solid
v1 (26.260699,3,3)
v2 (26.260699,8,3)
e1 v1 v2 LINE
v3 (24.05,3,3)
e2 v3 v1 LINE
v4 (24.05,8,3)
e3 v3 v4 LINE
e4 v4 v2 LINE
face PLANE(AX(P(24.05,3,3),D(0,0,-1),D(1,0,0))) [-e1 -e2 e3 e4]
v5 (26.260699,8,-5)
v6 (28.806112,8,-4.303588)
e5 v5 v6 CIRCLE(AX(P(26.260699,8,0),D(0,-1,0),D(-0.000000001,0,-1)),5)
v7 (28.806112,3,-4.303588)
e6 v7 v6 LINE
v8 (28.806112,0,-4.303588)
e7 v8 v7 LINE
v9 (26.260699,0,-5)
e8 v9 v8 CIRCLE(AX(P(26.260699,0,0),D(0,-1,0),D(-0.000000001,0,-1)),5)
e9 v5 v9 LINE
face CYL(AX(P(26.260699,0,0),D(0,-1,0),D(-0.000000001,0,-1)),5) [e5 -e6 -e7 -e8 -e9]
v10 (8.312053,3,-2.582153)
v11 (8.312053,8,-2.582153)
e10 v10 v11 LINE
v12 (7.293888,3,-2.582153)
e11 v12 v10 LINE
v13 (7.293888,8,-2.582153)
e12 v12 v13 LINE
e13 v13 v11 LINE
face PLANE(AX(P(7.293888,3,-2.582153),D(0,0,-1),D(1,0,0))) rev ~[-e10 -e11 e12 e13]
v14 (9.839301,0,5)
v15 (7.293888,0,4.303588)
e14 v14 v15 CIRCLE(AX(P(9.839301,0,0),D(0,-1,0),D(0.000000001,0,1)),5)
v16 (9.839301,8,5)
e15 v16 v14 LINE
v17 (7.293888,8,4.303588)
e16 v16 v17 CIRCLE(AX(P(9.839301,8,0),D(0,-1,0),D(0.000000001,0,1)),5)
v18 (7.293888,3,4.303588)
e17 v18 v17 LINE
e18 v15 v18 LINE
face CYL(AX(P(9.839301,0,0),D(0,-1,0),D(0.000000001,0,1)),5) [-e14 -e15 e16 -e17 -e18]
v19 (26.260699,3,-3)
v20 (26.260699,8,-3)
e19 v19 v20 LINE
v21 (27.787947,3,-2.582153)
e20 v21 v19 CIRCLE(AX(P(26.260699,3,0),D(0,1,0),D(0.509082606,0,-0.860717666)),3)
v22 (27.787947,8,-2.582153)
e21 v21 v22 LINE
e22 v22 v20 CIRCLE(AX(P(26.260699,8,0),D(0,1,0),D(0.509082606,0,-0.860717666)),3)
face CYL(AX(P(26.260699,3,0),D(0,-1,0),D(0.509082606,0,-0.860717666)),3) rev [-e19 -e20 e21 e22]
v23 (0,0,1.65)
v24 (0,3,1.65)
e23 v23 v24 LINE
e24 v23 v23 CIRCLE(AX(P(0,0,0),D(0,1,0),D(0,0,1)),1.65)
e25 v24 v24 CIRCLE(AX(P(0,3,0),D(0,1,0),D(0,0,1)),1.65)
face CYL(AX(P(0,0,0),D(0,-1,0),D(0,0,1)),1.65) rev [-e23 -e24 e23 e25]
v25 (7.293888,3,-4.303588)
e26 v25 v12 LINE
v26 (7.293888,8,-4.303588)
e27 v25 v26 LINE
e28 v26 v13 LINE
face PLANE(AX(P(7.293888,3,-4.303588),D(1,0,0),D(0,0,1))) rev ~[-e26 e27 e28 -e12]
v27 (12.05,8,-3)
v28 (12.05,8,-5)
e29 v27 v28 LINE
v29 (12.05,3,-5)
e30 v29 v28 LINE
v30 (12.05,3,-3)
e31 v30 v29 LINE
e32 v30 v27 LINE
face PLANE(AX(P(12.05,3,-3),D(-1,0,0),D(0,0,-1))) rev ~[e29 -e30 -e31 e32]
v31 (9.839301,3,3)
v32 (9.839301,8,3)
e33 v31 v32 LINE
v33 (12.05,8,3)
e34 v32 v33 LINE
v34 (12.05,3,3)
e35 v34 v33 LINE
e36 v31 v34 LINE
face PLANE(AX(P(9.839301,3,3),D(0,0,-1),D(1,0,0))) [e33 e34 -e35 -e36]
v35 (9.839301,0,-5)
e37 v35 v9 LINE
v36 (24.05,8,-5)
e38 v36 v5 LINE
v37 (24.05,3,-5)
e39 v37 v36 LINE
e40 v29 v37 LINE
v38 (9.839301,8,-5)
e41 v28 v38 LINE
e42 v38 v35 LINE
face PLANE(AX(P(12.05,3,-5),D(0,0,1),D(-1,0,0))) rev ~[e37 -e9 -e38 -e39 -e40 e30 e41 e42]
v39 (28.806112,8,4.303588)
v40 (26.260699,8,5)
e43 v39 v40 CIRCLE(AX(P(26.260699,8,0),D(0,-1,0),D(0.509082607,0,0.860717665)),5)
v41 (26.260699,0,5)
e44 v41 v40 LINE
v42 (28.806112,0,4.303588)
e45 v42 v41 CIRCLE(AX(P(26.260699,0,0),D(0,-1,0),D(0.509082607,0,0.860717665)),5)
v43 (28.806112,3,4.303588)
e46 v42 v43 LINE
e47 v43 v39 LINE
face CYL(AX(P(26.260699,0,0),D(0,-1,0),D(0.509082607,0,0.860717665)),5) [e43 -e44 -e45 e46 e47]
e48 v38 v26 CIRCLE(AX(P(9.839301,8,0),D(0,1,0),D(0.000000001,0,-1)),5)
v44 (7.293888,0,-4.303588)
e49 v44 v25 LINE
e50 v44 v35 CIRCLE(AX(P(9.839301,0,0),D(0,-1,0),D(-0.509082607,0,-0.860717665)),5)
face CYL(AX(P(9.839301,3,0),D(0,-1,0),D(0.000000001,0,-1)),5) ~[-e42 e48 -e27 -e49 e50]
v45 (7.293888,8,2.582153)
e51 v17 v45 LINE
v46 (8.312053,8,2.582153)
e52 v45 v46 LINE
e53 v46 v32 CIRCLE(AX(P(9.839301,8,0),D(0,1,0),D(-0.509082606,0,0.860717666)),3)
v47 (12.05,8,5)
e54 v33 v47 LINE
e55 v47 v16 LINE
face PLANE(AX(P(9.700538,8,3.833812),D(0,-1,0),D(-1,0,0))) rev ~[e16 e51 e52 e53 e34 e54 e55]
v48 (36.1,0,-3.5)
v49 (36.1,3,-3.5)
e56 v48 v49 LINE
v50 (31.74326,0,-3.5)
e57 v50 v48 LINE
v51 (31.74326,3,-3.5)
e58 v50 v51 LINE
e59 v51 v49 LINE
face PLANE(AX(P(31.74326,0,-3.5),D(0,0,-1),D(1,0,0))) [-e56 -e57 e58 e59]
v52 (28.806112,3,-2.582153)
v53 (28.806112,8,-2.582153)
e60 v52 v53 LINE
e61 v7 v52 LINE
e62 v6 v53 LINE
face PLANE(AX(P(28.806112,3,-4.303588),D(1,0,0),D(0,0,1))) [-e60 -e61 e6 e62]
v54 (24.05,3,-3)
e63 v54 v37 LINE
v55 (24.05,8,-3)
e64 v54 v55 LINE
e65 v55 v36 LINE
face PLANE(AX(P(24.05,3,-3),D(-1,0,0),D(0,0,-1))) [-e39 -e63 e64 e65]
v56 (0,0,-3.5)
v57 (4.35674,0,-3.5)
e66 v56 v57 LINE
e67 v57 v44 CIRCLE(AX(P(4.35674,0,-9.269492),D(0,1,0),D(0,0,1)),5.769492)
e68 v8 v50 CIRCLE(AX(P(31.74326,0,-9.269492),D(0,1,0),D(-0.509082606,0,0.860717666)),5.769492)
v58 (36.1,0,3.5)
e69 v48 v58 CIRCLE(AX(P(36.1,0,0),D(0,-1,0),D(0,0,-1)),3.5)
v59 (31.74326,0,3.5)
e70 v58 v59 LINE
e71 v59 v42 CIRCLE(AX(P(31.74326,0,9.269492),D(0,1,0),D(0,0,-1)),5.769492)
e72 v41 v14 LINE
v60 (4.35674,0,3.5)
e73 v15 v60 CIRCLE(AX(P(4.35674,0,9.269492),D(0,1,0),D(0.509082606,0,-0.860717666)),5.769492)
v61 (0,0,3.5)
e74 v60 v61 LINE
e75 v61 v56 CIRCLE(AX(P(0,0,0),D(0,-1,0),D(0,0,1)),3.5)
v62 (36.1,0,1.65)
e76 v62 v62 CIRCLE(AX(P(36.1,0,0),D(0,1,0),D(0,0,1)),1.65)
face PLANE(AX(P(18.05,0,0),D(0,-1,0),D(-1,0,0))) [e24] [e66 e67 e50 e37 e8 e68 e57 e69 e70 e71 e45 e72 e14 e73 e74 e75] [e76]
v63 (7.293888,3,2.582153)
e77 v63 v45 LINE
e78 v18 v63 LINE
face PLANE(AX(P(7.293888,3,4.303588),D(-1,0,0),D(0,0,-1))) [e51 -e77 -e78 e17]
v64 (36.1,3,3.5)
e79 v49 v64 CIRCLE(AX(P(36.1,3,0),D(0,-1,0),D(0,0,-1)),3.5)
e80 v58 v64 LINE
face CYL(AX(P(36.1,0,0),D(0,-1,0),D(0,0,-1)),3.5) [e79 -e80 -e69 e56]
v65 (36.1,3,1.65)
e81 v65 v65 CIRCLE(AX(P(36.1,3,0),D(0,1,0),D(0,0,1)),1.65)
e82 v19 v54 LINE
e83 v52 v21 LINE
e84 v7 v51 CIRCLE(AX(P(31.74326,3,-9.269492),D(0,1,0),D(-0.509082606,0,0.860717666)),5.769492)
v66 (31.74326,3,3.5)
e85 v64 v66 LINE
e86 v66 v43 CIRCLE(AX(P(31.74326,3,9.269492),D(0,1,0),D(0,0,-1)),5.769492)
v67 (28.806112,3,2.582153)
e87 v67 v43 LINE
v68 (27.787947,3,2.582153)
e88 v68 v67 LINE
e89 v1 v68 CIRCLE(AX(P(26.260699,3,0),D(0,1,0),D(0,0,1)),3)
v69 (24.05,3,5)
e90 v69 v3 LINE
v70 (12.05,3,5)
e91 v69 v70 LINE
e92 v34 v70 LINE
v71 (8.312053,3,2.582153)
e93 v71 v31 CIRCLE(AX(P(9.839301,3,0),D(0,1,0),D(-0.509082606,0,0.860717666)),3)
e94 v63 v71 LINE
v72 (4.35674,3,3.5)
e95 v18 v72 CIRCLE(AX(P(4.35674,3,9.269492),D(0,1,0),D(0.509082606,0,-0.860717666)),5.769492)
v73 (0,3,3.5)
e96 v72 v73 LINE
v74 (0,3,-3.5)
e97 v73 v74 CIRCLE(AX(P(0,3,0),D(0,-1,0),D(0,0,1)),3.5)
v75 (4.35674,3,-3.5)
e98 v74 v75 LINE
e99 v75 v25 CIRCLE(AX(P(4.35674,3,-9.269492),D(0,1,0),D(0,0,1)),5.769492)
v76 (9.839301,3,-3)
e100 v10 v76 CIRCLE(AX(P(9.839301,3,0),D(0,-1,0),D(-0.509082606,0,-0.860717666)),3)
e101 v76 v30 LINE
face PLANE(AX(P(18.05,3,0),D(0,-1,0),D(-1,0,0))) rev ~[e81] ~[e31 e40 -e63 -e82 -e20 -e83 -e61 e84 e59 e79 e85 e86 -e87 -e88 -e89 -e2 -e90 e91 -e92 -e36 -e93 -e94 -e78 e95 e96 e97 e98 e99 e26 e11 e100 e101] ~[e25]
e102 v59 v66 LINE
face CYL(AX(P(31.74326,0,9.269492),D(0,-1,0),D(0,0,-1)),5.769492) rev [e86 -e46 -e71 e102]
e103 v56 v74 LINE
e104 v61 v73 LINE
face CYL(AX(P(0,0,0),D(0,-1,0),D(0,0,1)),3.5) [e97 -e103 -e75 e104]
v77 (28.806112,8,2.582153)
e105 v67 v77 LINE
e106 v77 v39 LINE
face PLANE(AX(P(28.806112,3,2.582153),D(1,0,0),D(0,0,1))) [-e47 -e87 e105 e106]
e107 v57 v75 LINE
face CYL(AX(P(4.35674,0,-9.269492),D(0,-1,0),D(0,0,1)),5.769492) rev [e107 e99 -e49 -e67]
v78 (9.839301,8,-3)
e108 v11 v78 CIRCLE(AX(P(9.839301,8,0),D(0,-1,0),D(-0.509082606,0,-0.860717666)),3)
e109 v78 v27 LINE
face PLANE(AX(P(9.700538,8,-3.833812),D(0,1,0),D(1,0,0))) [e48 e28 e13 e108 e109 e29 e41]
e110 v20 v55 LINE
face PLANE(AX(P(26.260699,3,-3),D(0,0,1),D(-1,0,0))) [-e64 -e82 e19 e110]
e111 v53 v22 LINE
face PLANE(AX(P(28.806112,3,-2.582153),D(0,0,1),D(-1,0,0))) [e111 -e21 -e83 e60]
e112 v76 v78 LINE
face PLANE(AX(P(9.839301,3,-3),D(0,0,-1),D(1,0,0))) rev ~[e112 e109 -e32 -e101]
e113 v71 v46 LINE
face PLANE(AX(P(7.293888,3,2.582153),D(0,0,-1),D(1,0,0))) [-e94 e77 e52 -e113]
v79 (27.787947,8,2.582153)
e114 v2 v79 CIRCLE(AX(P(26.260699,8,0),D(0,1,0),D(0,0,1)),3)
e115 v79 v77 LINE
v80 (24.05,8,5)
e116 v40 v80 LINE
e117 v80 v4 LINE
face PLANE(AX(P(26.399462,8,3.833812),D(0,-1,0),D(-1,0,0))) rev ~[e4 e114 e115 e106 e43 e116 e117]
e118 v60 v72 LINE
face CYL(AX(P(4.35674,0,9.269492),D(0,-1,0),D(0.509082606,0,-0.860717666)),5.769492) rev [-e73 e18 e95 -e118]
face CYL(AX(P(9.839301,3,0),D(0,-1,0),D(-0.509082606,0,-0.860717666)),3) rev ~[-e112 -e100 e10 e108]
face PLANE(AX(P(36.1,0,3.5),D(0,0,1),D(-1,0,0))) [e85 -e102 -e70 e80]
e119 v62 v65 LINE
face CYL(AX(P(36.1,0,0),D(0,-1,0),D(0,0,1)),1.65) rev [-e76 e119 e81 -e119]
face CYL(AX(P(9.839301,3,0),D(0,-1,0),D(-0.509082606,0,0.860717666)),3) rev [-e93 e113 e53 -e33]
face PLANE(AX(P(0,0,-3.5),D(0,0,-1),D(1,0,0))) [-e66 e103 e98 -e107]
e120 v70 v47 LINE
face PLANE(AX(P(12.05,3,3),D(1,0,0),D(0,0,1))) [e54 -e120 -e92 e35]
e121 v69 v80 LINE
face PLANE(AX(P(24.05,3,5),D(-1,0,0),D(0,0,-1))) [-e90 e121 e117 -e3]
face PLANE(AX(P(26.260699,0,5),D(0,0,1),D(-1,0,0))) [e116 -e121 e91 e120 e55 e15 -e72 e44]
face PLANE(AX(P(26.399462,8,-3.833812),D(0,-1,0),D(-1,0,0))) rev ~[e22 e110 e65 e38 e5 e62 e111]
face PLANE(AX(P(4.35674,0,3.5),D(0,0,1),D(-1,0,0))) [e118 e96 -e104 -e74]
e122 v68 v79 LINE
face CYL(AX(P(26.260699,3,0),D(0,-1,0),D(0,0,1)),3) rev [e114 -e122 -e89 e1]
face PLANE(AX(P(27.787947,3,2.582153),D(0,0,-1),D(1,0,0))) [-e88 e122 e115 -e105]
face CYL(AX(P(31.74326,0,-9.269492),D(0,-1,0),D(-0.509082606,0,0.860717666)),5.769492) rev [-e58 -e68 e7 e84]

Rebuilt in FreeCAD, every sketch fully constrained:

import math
import FreeCAD as App
import Part
import Sketcher

V = App.Vector

doc = App.newDocument("Part")
body = doc.addObject("PartDesign::Body", "Body")

# Sketch on XZ plane
sketch1 = body.newObject("Sketcher::SketchObject", "Sketch")
sketch1.AttachmentSupport = (doc.getObject("XZ_Plane"), [""])
sketch1.MapMode = "FlatFace"
sketch1.addGeometry(Part.LineSegment(V(4.4, -3.5, 0), V(0, -3.5, 0)), False)
sketch1.addGeometry(Part.ArcOfCircle(Part.Circle(V(0, 0, 0), V(0, 0, 1), 3.5), math.radians(90), math.radians(270)), False)
sketch1.addGeometry(Part.LineSegment(V(0, 3.5, 0), V(4.4, 3.5, 0)), False)
sketch1.addGeometry(Part.ArcOfCircle(Part.Circle(V(4.4, 9.3, 0), V(0, 0, 1), 5.8), math.radians(-90), math.radians(-59)), False)
sketch1.addGeometry(Part.ArcOfCircle(Part.Circle(V(9.8, 0, 0), V(0, 0, 1), 5), math.radians(90), math.radians(121)), False)
sketch1.addGeometry(Part.LineSegment(V(9.8, 5, 0), V(26.3, 5, 0)), False)
sketch1.addGeometry(Part.ArcOfCircle(Part.Circle(V(26.3, 0, 0), V(0, 0, 1), 5), math.radians(59), math.radians(90)), False)
sketch1.addGeometry(Part.ArcOfCircle(Part.Circle(V(31.7, 9.3, 0), V(0, 0, 1), 5.8), math.radians(-121), math.radians(-90)), False)
sketch1.addGeometry(Part.LineSegment(V(31.7, 3.5, 0), V(36.1, 3.5, 0)), False)
sketch1.addGeometry(Part.ArcOfCircle(Part.Circle(V(36.1, 0, 0), V(0, 0, 1), 3.5), math.radians(-90), math.radians(90)), False)
sketch1.addGeometry(Part.LineSegment(V(36.1, -3.5, 0), V(31.7, -3.5, 0)), False)
sketch1.addGeometry(Part.ArcOfCircle(Part.Circle(V(31.7, -9.3, 0), V(0, 0, 1), 5.8), math.radians(90), math.radians(121)), False)
sketch1.addGeometry(Part.ArcOfCircle(Part.Circle(V(26.3, 0, 0), V(0, 0, 1), 5), math.radians(-90), math.radians(-59)), False)
sketch1.addGeometry(Part.LineSegment(V(26.3, -5, 0), V(9.8, -5, 0)), False)
sketch1.addGeometry(Part.ArcOfCircle(Part.Circle(V(9.8, 0, 0), V(0, 0, 1), 5), math.radians(-121), math.radians(-90)), False)
sketch1.addGeometry(Part.ArcOfCircle(Part.Circle(V(4.4, -9.3, 0), V(0, 0, 1), 5.8), math.radians(59), math.radians(90)), False)
sketch1.addGeometry(Part.Circle(V(36.1, 0, 0), V(0, 0, 1), 1.6), False)
sketch1.addGeometry(Part.Circle(V(0, 0, 0), V(0, 0, 1), 1.6), False)
sketch1.addConstraint(Sketcher.Constraint("Tangent", 0, 2, 1, 2))
sketch1.addConstraint(Sketcher.Constraint("Tangent", 1, 1, 2, 1))
sketch1.addConstraint(Sketcher.Constraint("Tangent", 2, 2, 3, 1))
sketch1.addConstraint(Sketcher.Constraint("Tangent", 3, 2, 4, 2))
sketch1.addConstraint(Sketcher.Constraint("Tangent", 4, 1, 5, 1))
sketch1.addConstraint(Sketcher.Constraint("Tangent", 5, 2, 6, 2))
sketch1.addConstraint(Sketcher.Constraint("Tangent", 6, 1, 7, 1))
sketch1.addConstraint(Sketcher.Constraint("Tangent", 7, 2, 8, 1))
sketch1.addConstraint(Sketcher.Constraint("Tangent", 8, 2, 9, 2))
sketch1.addConstraint(Sketcher.Constraint("Tangent", 9, 1, 10, 1))
sketch1.addConstraint(Sketcher.Constraint("Tangent", 10, 2, 11, 1))
sketch1.addConstraint(Sketcher.Constraint("Tangent", 11, 2, 12, 2))
sketch1.addConstraint(Sketcher.Constraint("Tangent", 12, 1, 13, 1))
sketch1.addConstraint(Sketcher.Constraint("Tangent", 13, 2, 14, 2))
sketch1.addConstraint(Sketcher.Constraint("Tangent", 14, 1, 15, 1))
sketch1.addConstraint(Sketcher.Constraint("Tangent", 15, 2, 0, 1))
sketch1.addConstraint(Sketcher.Constraint("Horizontal", 0))
sketch1.addConstraint(Sketcher.Constraint("Horizontal", 2))
sketch1.addConstraint(Sketcher.Constraint("Horizontal", 5))
sketch1.addConstraint(Sketcher.Constraint("Horizontal", 8))
sketch1.addConstraint(Sketcher.Constraint("Horizontal", 10))
sketch1.addConstraint(Sketcher.Constraint("Horizontal", 13))
sketch1.addConstraint(Sketcher.Constraint("Coincident", 1, 3, -1, 1))
sketch1.addConstraint(Sketcher.Constraint("Coincident", 17, 3, -1, 1))
sketch1.addConstraint(Sketcher.Constraint("Coincident", 12, 3, 6, 3))
sketch1.addConstraint(Sketcher.Constraint("Coincident", 14, 3, 4, 3))
sketch1.addConstraint(Sketcher.Constraint("Coincident", 16, 3, 9, 3))
sketch1.addConstraint(Sketcher.Constraint("Equal", 4, 6))
sketch1.addConstraint(Sketcher.Constraint("Equal", 3, 7))
sketch1.addConstraint(Sketcher.Constraint("Equal", 1, 9))
sketch1.addConstraint(Sketcher.Constraint("Equal", 7, 11))
sketch1.addConstraint(Sketcher.Constraint("Equal", 6, 12))
sketch1.addConstraint(Sketcher.Constraint("Equal", 11, 15))
sketch1.addConstraint(Sketcher.Constraint("Equal", 16, 17))
sketch1.addConstraint(Sketcher.Constraint("Symmetric", 7, 3, 11, 3, -1))
sketch1.addConstraint(Sketcher.Constraint("Equal", 2, 8))
sketch1.addConstraint(Sketcher.Constraint("Radius", 4, 5.0))
sketch1.addConstraint(Sketcher.Constraint("Diameter", 16, 3.3))
sketch1.addConstraint(Sketcher.Constraint("Radius", 1, 3.5))
sketch1.addConstraint(Sketcher.Constraint("DistanceX", -1, 1, 9, 3, 36.1))
sketch1.addConstraint(Sketcher.Constraint("DistanceX", 5, 1, 5, 2, 16.421399))
sketch1.addConstraint(Sketcher.Constraint("Radius", 3, 5.769492))
pad1 = body.newObject("PartDesign::Pad", "Pad")
pad1.Profile = sketch1
pad1.Length = 3
pad1.Reversed = True

# Sketch on XZ plane
sketch2 = body.newObject("Sketcher::SketchObject", "Sketch001")
sketch2.AttachmentSupport = (doc.getObject("XZ_Plane"), [""])
sketch2.MapMode = "FlatFace"
sketch2.AttachmentOffset = App.Placement(V(0, 0, -3), App.Rotation())
sketch2.addGeometry(Part.LineSegment(V(7.3, -4.3, 0), V(7.3, -2.6, 0)), False)
sketch2.addGeometry(Part.LineSegment(V(7.3, -2.6, 0), V(8.3, -2.6, 0)), False)
sketch2.addGeometry(Part.ArcOfCircle(Part.Circle(V(9.8, 0, 0), V(0, 0, 1), 3), math.radians(-121), math.radians(-90)), False)
sketch2.addGeometry(Part.LineSegment(V(9.8, -3, 0), V(12.1, -3, 0)), False)
sketch2.addGeometry(Part.LineSegment(V(12.1, -3, 0), V(12.1, -5, 0)), False)
sketch2.addGeometry(Part.LineSegment(V(12.1, -5, 0), V(9.8, -5, 0)), False)
sketch2.addGeometry(Part.ArcOfCircle(Part.Circle(V(9.8, 0, 0), V(0, 0, 1), 5), math.radians(-121), math.radians(-90)), False)
sketch2.addGeometry(Part.LineSegment(V(28.8, -2.6, 0), V(28.8, -4.3, 0)), False)
sketch2.addGeometry(Part.ArcOfCircle(Part.Circle(V(26.3, 0, 0), V(0, 0, 1), 5), math.radians(-90), math.radians(-59)), False)
sketch2.addGeometry(Part.LineSegment(V(26.3, -5, 0), V(24.1, -5, 0)), False)
sketch2.addGeometry(Part.LineSegment(V(24.1, -5, 0), V(24.1, -3, 0)), False)
sketch2.addGeometry(Part.LineSegment(V(24.1, -3, 0), V(26.3, -3, 0)), False)
sketch2.addGeometry(Part.ArcOfCircle(Part.Circle(V(26.3, 0, 0), V(0, 0, 1), 3), math.radians(-90), math.radians(-59)), False)
sketch2.addGeometry(Part.LineSegment(V(27.8, -2.6, 0), V(28.8, -2.6, 0)), False)
sketch2.addGeometry(Part.LineSegment(V(12.1, 3, 0), V(9.8, 3, 0)), False)
sketch2.addGeometry(Part.ArcOfCircle(Part.Circle(V(9.8, 0, 0), V(0, 0, 1), 3), math.radians(90), math.radians(121)), False)
sketch2.addGeometry(Part.LineSegment(V(8.3, 2.6, 0), V(7.3, 2.6, 0)), False)
sketch2.addGeometry(Part.LineSegment(V(7.3, 2.6, 0), V(7.3, 4.3, 0)), False)
sketch2.addGeometry(Part.ArcOfCircle(Part.Circle(V(9.8, 0, 0), V(0, 0, 1), 5), math.radians(90), math.radians(121)), False)
sketch2.addGeometry(Part.LineSegment(V(9.8, 5, 0), V(12.1, 5, 0)), False)
sketch2.addGeometry(Part.LineSegment(V(12.1, 5, 0), V(12.1, 3, 0)), False)
sketch2.addGeometry(Part.LineSegment(V(28.8, 2.6, 0), V(27.8, 2.6, 0)), False)
sketch2.addGeometry(Part.ArcOfCircle(Part.Circle(V(26.3, 0, 0), V(0, 0, 1), 3), math.radians(59), math.radians(90)), False)
sketch2.addGeometry(Part.LineSegment(V(26.3, 3, 0), V(24.1, 3, 0)), False)
sketch2.addGeometry(Part.LineSegment(V(24.1, 3, 0), V(24.1, 5, 0)), False)
sketch2.addGeometry(Part.LineSegment(V(24.1, 5, 0), V(26.3, 5, 0)), False)
sketch2.addGeometry(Part.ArcOfCircle(Part.Circle(V(26.3, 0, 0), V(0, 0, 1), 5), math.radians(59), math.radians(90)), False)
sketch2.addGeometry(Part.LineSegment(V(28.8, 4.3, 0), V(28.8, 2.6, 0)), False)
sketch2.addConstraint(Sketcher.Constraint("Coincident", 0, 2, 1, 1))
sketch2.addConstraint(Sketcher.Constraint("Coincident", 1, 2, 2, 1))
sketch2.addConstraint(Sketcher.Constraint("Tangent", 2, 2, 3, 1))
sketch2.addConstraint(Sketcher.Constraint("Coincident", 3, 2, 4, 1))
sketch2.addConstraint(Sketcher.Constraint("Coincident", 4, 2, 5, 1))
sketch2.addConstraint(Sketcher.Constraint("Tangent", 5, 2, 6, 2))
sketch2.addConstraint(Sketcher.Constraint("Coincident", 6, 1, 0, 1))
sketch2.addConstraint(Sketcher.Constraint("Coincident", 7, 2, 8, 2))
sketch2.addConstraint(Sketcher.Constraint("Tangent", 8, 1, 9, 1))
sketch2.addConstraint(Sketcher.Constraint("Coincident", 9, 2, 10, 1))
sketch2.addConstraint(Sketcher.Constraint("Coincident", 10, 2, 11, 1))
sketch2.addConstraint(Sketcher.Constraint("Tangent", 11, 2, 12, 1))
sketch2.addConstraint(Sketcher.Constraint("Coincident", 12, 2, 13, 1))
sketch2.addConstraint(Sketcher.Constraint("Coincident", 13, 2, 7, 1))
sketch2.addConstraint(Sketcher.Constraint("Tangent", 14, 2, 15, 1))
sketch2.addConstraint(Sketcher.Constraint("Coincident", 15, 2, 16, 1))
sketch2.addConstraint(Sketcher.Constraint("Coincident", 16, 2, 17, 1))
sketch2.addConstraint(Sketcher.Constraint("Coincident", 17, 2, 18, 2))
sketch2.addConstraint(Sketcher.Constraint("Tangent", 18, 1, 19, 1))
sketch2.addConstraint(Sketcher.Constraint("Coincident", 19, 2, 20, 1))
sketch2.addConstraint(Sketcher.Constraint("Coincident", 20, 2, 14, 1))
sketch2.addConstraint(Sketcher.Constraint("Coincident", 21, 2, 22, 1))
sketch2.addConstraint(Sketcher.Constraint("Tangent", 22, 2, 23, 1))
sketch2.addConstraint(Sketcher.Constraint("Coincident", 23, 2, 24, 1))
sketch2.addConstraint(Sketcher.Constraint("Coincident", 24, 2, 25, 1))
sketch2.addConstraint(Sketcher.Constraint("Tangent", 25, 2, 26, 2))
sketch2.addConstraint(Sketcher.Constraint("Coincident", 26, 1, 27, 1))
sketch2.addConstraint(Sketcher.Constraint("Coincident", 27, 2, 21, 1))
sketch2.addConstraint(Sketcher.Constraint("Vertical", 0))
sketch2.addConstraint(Sketcher.Constraint("Horizontal", 1))
sketch2.addConstraint(Sketcher.Constraint("Horizontal", 3))
sketch2.addConstraint(Sketcher.Constraint("Vertical", 4))
sketch2.addConstraint(Sketcher.Constraint("Horizontal", 5))
sketch2.addConstraint(Sketcher.Constraint("Vertical", 7))
sketch2.addConstraint(Sketcher.Constraint("Horizontal", 9))
sketch2.addConstraint(Sketcher.Constraint("Vertical", 10))
sketch2.addConstraint(Sketcher.Constraint("Horizontal", 11))
sketch2.addConstraint(Sketcher.Constraint("Horizontal", 13))
sketch2.addConstraint(Sketcher.Constraint("Horizontal", 14))
sketch2.addConstraint(Sketcher.Constraint("Horizontal", 16))
sketch2.addConstraint(Sketcher.Constraint("Vertical", 17))
sketch2.addConstraint(Sketcher.Constraint("Horizontal", 19))
sketch2.addConstraint(Sketcher.Constraint("Vertical", 20))
sketch2.addConstraint(Sketcher.Constraint("Horizontal", 21))
sketch2.addConstraint(Sketcher.Constraint("Horizontal", 23))
sketch2.addConstraint(Sketcher.Constraint("Vertical", 24))
sketch2.addConstraint(Sketcher.Constraint("Horizontal", 25))
sketch2.addConstraint(Sketcher.Constraint("Vertical", 27))
sketch2.addConstraint(Sketcher.Constraint("Coincident", 6, 3, 2, 3))
sketch2.addConstraint(Sketcher.Constraint("Coincident", 12, 3, 8, 3))
sketch2.addConstraint(Sketcher.Constraint("Coincident", 15, 3, 2, 3))
sketch2.addConstraint(Sketcher.Constraint("Coincident", 18, 3, 2, 3))
sketch2.addConstraint(Sketcher.Constraint("Coincident", 22, 3, 8, 3))
sketch2.addConstraint(Sketcher.Constraint("Coincident", 26, 3, 8, 3))
sketch2.addConstraint(Sketcher.Constraint("Equal", 6, 8))
sketch2.addConstraint(Sketcher.Constraint("Equal", 2, 12))
sketch2.addConstraint(Sketcher.Constraint("Equal", 12, 15))
sketch2.addConstraint(Sketcher.Constraint("Equal", 8, 18))
sketch2.addConstraint(Sketcher.Constraint("Equal", 15, 22))
sketch2.addConstraint(Sketcher.Constraint("Equal", 18, 26))
sketch2.addConstraint(Sketcher.Constraint("Symmetric", 1, 2, 15, 2, -1))
sketch2.addConstraint(Sketcher.Constraint("Symmetric", 12, 2, 21, 2, -1))
sketch2.addConstraint(Sketcher.Constraint("Horizontal", 6, 1, 7, 2))
sketch2.addConstraint(Sketcher.Constraint("Horizontal", 1, 2, 12, 2))
sketch2.addConstraint(Sketcher.Constraint("Horizontal", 17, 2, 26, 1))
sketch2.addConstraint(Sketcher.Constraint("Vertical", 6, 1, 16, 2))
sketch2.addConstraint(Sketcher.Constraint("Vertical", 4, 2, 19, 2))
sketch2.addConstraint(Sketcher.Constraint("Vertical", 10, 2, 23, 2))
sketch2.addConstraint(Sketcher.Constraint("Equal", 5, 9))
sketch2.addConstraint(Sketcher.Constraint("Radius", 2, 3.0))
sketch2.addConstraint(Sketcher.Constraint("Radius", 6, 5.0))
sketch2.addConstraint(Sketcher.Constraint("DistanceX", -1, 1, 3, 2, 12.05))
sketch2.addConstraint(Sketcher.Constraint("DistanceX", -1, 1, 9, 2, 24.05))
sketch2.addConstraint(Sketcher.Constraint("DistanceX", 3, 1, 3, 2, 2.210699))
sketch2.addConstraint(Sketcher.Constraint("DistanceX", 1, 1, 1, 2, 1.018165))
sketch2.addConstraint(Sketcher.Constraint("DistanceY", 6, 1, -1, 1, 4.303588))
pad2 = body.newObject("PartDesign::Pad", "Pad001")
pad2.Profile = sketch2
pad2.Length = 5
pad2.Reversed = True

doc.recompute()
